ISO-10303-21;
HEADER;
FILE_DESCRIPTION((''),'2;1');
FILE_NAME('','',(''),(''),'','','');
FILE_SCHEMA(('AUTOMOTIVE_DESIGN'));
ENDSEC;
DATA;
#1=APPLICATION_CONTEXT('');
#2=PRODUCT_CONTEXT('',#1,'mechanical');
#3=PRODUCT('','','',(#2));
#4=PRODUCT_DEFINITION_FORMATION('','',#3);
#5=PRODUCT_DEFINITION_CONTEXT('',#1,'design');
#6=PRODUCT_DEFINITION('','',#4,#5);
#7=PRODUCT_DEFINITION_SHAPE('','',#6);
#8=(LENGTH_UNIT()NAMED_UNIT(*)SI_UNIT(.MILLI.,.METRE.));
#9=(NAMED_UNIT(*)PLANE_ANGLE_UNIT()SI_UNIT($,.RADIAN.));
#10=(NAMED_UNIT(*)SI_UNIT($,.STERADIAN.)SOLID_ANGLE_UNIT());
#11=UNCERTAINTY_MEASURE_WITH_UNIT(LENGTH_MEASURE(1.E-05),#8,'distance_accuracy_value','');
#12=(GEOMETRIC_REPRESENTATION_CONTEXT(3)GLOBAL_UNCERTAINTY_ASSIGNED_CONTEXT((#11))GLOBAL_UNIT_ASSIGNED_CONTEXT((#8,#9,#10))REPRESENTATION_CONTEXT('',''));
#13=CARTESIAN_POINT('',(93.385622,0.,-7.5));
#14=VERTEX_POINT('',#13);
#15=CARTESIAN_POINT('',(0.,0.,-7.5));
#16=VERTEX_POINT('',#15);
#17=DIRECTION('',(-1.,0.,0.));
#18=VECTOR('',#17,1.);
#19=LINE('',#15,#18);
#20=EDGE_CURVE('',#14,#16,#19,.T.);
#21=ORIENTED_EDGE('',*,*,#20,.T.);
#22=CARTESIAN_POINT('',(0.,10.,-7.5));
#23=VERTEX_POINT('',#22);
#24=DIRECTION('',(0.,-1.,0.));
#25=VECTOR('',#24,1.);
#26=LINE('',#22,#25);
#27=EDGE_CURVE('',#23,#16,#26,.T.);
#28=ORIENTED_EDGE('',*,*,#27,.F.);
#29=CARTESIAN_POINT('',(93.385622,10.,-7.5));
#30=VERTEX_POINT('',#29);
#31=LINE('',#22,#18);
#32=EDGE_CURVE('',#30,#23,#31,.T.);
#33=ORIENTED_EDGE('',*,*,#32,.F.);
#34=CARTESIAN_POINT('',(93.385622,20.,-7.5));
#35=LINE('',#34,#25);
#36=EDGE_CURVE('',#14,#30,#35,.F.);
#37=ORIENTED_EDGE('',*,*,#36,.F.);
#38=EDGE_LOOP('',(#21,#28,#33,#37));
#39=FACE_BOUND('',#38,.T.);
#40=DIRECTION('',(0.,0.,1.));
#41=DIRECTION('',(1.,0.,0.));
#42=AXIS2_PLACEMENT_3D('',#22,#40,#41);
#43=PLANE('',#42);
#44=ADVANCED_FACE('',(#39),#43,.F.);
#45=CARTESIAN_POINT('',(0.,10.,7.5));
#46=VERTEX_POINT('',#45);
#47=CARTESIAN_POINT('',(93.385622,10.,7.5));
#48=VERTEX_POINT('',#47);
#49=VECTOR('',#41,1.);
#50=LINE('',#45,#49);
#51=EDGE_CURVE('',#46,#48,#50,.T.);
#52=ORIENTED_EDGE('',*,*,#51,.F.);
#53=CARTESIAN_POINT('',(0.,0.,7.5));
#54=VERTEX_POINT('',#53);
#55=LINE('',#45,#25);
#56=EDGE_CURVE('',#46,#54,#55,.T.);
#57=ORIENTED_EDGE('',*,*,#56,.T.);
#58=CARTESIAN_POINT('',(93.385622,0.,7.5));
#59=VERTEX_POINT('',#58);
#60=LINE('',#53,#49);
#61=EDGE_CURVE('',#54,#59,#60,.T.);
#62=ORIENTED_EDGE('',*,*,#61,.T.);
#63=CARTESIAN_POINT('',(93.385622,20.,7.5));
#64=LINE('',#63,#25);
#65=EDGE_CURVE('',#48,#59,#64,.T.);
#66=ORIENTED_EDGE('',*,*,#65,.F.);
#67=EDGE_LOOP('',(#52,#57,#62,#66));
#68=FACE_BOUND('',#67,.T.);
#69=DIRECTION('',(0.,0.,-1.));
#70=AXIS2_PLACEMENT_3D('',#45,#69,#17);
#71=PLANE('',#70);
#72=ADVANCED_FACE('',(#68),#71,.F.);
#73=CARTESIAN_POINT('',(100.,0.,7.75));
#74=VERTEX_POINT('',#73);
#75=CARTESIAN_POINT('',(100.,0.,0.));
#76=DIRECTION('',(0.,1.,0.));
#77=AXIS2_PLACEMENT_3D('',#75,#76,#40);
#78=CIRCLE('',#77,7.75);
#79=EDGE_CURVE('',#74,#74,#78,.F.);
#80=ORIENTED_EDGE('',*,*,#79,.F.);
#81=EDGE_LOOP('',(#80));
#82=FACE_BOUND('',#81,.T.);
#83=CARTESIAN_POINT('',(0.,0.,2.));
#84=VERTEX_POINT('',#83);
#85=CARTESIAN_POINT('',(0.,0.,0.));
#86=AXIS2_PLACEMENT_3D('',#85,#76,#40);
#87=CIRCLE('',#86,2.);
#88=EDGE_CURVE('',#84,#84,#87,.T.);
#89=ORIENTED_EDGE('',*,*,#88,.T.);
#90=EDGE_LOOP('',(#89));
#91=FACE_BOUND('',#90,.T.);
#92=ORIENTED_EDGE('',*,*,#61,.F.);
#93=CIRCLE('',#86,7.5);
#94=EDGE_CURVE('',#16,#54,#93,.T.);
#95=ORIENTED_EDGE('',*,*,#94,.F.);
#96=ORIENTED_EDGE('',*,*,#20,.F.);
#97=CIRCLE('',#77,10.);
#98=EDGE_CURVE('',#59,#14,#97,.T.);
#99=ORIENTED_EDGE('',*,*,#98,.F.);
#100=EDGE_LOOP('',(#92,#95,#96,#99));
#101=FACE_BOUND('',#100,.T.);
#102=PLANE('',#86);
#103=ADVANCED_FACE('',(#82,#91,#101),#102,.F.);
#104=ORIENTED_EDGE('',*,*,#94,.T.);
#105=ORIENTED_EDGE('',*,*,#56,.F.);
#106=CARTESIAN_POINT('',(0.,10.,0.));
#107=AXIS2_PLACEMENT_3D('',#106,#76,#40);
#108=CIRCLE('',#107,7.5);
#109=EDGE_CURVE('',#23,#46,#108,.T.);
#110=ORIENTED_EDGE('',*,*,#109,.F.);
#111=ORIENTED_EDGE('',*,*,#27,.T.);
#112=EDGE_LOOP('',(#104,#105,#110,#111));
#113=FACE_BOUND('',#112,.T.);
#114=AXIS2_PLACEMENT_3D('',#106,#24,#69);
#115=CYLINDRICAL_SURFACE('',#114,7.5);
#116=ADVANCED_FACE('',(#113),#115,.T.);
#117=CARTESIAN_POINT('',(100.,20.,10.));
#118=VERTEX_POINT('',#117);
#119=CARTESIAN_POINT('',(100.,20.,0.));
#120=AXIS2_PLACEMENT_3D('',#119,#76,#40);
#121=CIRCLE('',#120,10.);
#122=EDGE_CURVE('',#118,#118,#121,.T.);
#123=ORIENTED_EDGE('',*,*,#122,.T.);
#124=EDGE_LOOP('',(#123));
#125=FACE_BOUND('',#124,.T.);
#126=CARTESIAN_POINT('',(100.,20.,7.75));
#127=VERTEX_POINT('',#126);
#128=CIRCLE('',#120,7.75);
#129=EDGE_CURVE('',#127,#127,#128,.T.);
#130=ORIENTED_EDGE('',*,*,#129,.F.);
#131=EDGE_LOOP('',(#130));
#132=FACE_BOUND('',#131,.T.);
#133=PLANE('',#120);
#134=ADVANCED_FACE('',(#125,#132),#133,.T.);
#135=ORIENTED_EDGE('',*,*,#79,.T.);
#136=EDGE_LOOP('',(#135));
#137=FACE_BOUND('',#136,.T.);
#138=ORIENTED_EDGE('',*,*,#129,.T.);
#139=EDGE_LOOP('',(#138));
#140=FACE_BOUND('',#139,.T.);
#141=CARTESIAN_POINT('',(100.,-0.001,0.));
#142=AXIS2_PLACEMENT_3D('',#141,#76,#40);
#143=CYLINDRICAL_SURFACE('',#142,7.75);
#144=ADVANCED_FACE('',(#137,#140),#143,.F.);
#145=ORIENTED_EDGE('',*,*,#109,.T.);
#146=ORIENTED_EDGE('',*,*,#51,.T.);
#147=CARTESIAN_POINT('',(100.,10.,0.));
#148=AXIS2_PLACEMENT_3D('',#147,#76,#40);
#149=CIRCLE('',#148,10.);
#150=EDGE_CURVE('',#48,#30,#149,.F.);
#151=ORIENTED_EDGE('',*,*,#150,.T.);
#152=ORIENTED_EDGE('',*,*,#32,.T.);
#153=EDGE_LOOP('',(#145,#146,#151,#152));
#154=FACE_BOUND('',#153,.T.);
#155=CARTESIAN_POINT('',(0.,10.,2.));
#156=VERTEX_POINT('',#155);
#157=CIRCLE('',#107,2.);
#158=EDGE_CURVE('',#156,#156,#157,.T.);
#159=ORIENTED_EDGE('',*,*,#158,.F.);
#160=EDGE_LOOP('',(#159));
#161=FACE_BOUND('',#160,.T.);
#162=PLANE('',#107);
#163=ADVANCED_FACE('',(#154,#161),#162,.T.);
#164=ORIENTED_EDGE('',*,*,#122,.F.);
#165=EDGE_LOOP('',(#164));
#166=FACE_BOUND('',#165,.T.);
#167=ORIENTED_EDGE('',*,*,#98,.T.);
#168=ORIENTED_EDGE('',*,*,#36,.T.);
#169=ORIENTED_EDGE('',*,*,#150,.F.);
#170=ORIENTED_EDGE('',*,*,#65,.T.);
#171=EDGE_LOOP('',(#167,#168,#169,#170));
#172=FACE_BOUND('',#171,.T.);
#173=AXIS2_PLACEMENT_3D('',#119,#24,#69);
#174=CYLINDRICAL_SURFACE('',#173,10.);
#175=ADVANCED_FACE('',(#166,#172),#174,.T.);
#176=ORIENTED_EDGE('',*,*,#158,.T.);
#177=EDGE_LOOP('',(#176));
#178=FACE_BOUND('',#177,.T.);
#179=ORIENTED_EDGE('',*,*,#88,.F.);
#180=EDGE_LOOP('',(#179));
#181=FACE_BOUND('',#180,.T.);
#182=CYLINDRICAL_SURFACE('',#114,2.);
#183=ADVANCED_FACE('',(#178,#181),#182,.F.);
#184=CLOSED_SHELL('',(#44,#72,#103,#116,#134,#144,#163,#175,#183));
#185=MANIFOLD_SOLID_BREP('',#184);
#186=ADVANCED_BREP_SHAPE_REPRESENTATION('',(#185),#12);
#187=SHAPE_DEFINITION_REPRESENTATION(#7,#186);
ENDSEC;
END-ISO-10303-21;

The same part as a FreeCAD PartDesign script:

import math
import FreeCAD as App
import Part
import Sketcher

V = App.Vector
Q = App.Units.Quantity

doc = App.newDocument("Part")
body = doc.addObject("PartDesign::Body", "Body")

# Sketch on XZ plane
sketch1 = body.newObject("Sketcher::SketchObject", "Sketch")
sketch1.AttachmentSupport = (doc.getObject("XZ_Plane"), [""])
sketch1.MapMode = "FlatFace"
sketch1.addGeometry([
    Part.LineSegment(V(100, -7.5, 0), V(0, -7.5, 0)),  # 0
    Part.ArcOfCircle(Part.Circle(V(0, 0, 0), V(0, 0, 1), 7.5), math.radians(90), math.radians(270)),  # 1
    Part.LineSegment(V(0, 7.5, 0), V(100, 7.5, 0)),  # 2
    Part.ArcOfCircle(Part.Circle(V(100, 0, 0), V(0, 0, 1), 7.5), math.radians(-90), math.radians(90)),  # 3
    Part.Circle(V(100, 0, 0), V(0, 0, 1), 2.5),  # 4
    Part.Circle(V(0, 0, 0), V(0, 0, 1), 2),  # 5
], False)
sketch1.addConstraint([
    Sketcher.Constraint("Tangent", 0, 2, 1, 2),
    Sketcher.Constraint("Tangent", 1, 1, 2, 1),
    Sketcher.Constraint("Tangent", 2, 2, 3, 2),
    Sketcher.Constraint("Tangent", 3, 1, 0, 1),
    Sketcher.Constraint("Horizontal", 0),
    Sketcher.Constraint("Horizontal", 2),
    Sketcher.Constraint("Coincident", 1, 3, -1, 1),
    Sketcher.Constraint("Coincident", 5, 3, -1, 1),
    Sketcher.Constraint("Coincident", 4, 3, 3, 3),
    Sketcher.Constraint("Diameter", 4, Q("5 mm")),
    Sketcher.Constraint("Diameter", 5, Q("4 mm")),
    Sketcher.Constraint("Radius", 1, Q("7.5 mm")),
    Sketcher.Constraint("DistanceX", 0, 2, 0, 1, Q("100 mm")),
])
pad1 = body.newObject("PartDesign::Pad", "Pad")
pad1.Profile = sketch1
pad1.Length = 10
pad1.Reversed = True

# Sketch on XZ plane
sketch2 = body.newObject("Sketcher::SketchObject", "Sketch001")
sketch2.AttachmentSupport = (doc.getObject("XZ_Plane"), [""])
sketch2.MapMode = "FlatFace"
sketch2.addGeometry(Part.Circle(V(100, 0, 0), V(0, 0, 1), 10), False)
sketch2.addConstraint([
    Sketcher.Constraint("PointOnObject", 0, 3, -1),
    Sketcher.Constraint("Diameter", 0, Q("20 mm")),
    Sketcher.Constraint("DistanceX", -1, 1, 0, 3, Q("100 mm")),
])
pad2 = body.newObject("PartDesign::Pad", "Pad001")
pad2.Profile = sketch2
pad2.Length = 20
pad2.Reversed = True

# Sketch on XZ plane
sketch3 = body.newObject("Sketcher::SketchObject", "Sketch002")
sketch3.AttachmentSupport = (doc.getObject("XZ_Plane"), [""])
sketch3.MapMode = "FlatFace"
sketch3.AttachmentOffset = App.Placement(V(0, 0, -20), App.Rotation())
sketch3.addGeometry(Part.Circle(V(100, 0, 0), V(0, 0, 1), 7.75), False)
sketch3.addConstraint([
    Sketcher.Constraint("PointOnObject", 0, 3, -1),
    Sketcher.Constraint("Diameter", 0, Q("15.5 mm")),
    Sketcher.Constraint("DistanceX", -1, 1, 0, 3, Q("100 mm")),
])
pocket1 = body.newObject("PartDesign::Pocket", "Pocket")
pocket1.Profile = sketch3
pocket1.Type = "UpToFirst"
pocket1.Reversed = True

doc.recompute()
